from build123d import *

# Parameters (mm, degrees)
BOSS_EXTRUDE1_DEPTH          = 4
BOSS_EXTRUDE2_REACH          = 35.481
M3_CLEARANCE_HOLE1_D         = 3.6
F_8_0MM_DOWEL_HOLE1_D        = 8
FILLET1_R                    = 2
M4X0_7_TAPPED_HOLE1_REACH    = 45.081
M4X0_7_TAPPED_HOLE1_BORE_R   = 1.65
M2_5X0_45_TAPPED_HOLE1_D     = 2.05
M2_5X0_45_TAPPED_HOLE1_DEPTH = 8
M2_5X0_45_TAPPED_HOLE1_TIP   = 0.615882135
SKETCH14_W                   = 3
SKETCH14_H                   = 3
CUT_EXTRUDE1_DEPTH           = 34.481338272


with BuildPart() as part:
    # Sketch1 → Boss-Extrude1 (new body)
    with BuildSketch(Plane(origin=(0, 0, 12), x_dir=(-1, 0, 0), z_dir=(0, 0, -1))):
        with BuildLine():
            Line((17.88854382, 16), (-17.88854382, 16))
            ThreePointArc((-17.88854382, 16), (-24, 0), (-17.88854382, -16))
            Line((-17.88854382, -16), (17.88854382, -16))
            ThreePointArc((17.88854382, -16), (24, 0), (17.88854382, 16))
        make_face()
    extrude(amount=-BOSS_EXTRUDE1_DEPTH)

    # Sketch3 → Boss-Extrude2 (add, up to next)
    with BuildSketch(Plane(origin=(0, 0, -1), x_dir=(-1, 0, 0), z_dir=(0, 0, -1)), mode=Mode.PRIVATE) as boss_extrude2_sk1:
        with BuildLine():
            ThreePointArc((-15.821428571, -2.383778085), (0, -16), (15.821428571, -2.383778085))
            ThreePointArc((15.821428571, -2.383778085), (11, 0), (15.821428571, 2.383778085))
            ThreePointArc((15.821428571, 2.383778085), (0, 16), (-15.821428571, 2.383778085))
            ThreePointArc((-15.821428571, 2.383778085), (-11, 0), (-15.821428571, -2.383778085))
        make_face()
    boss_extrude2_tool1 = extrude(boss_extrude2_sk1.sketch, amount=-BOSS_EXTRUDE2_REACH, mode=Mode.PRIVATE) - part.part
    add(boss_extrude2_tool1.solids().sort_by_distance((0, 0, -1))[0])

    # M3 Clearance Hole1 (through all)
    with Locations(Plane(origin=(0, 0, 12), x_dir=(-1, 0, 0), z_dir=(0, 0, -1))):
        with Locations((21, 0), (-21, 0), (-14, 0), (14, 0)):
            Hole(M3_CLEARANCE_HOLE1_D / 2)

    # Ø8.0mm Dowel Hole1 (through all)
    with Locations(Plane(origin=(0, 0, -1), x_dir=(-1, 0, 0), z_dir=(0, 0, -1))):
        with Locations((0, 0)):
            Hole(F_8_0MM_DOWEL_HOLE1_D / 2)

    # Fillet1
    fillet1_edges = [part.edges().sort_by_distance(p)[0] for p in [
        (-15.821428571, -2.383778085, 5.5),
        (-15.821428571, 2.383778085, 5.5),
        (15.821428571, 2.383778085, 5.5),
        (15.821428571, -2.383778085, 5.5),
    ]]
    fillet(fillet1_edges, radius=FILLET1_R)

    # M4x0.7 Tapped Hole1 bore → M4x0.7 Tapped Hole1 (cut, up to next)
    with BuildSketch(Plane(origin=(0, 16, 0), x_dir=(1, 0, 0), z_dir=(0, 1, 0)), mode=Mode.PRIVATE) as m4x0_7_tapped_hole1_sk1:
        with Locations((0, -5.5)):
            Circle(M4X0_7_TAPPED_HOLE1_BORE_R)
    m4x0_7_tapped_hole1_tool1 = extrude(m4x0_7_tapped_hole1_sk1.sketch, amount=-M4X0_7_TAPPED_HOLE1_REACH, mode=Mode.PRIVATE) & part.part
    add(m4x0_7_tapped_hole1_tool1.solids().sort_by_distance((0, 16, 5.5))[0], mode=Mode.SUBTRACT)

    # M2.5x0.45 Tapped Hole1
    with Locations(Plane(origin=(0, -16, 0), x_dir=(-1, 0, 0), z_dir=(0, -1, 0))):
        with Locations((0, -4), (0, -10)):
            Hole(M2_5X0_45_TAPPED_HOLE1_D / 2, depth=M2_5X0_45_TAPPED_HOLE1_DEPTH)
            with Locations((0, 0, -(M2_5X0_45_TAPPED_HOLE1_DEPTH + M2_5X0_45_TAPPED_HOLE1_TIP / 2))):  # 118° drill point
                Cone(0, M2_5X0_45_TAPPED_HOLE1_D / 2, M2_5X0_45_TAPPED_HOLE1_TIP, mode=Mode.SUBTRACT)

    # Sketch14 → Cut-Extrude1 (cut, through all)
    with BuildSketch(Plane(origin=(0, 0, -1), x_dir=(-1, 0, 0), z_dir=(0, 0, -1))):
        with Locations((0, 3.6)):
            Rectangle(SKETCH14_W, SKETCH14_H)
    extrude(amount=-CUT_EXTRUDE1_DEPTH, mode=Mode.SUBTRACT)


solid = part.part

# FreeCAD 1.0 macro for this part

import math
import FreeCAD as App
import Part
import Sketcher
Q = App.Units.Quantity


def edges_at(feature, points):
    """Names of the edges that pass closest to the given points."""
    edges = feature.Shape.Edges
    near = lambda p: min(range(len(edges)), key=lambda i: edges[i].distToShape(Part.Vertex(*p))[0])
    return sorted({f"Edge{near(p) + 1}" for p in points})


def add_polygon(sketch, points):
    """Adds a closed chain of lines whose ends are joined by coincident constraints."""
    first, n = sketch.GeometryCount, len(points)
    for a, b in zip(points, points[1:] + points[:1]):
        sketch.addGeometry(Part.LineSegment(App.Vector(*a, 0), App.Vector(*b, 0)), False)
    for i in range(n):
        sketch.addConstraint(Sketcher.Constraint("Coincident", first + i, 2, first + (i + 1) % n, 1))

doc = App.newDocument("Part")
body = doc.addObject("PartDesign::Body", "Body")

# Sketch on XY plane
sketch1 = doc.addObject("Sketcher::SketchObject", "Sketch")
body.addObject(sketch1)
sketch1.AttachmentSupport = (doc.XY_Plane, [""])
sketch1.MapMode = "FlatFace"
sketch1.AttachmentOffset = App.Placement(App.Vector(0, 0, 12), App.Rotation())
sketch1.addGeometry(Part.LineSegment(App.Vector(-17.888544, 16, 0), App.Vector(17.888544, 16, 0)), False)
sketch1.addGeometry(Part.ArcOfCircle(Part.Circle(App.Vector(0, 0, 0), App.Vector(0, 0, 1), 24), math.radians(-41.810315), math.radians(41.810315)), False)
sketch1.addGeometry(Part.LineSegment(App.Vector(17.888544, -16, 0), App.Vector(-17.888544, -16, 0)), False)
sketch1.addGeometry(Part.ArcOfCircle(Part.Circle(App.Vector(0, 0, 0), App.Vector(0, 0, 1), 24), math.radians(138.189685), math.radians(221.810315)), False)
sketch1.addConstraint(Sketcher.Constraint("Coincident", 0, 2, 1, 2))
sketch1.addConstraint(Sketcher.Constraint("Coincident", 1, 1, 2, 1))
sketch1.addConstraint(Sketcher.Constraint("Coincident", 2, 2, 3, 2))
sketch1.addConstraint(Sketcher.Constraint("Coincident", 3, 1, 0, 1))
sketch1.addConstraint(Sketcher.Constraint("Horizontal", 0))
sketch1.addConstraint(Sketcher.Constraint("Horizontal", 2))
sketch1.addConstraint(Sketcher.Constraint("Coincident", 1, 3, -1, 1))
sketch1.addConstraint(Sketcher.Constraint("Coincident", 3, 3, -1, 1))
sketch1.addConstraint(Sketcher.Constraint("Equal", 1, 3))
sketch1.addConstraint(Sketcher.Constraint("Vertical", 0, 2, 1, 1))
sketch1.addConstraint(Sketcher.Constraint("Radius", 1, Q("24 mm")))
sketch1.addConstraint(Sketcher.Constraint("DistanceY", -1, 1, 0, 2, Q("16 mm")))
pad1 = doc.addObject("PartDesign::Pad", "Pad")
body.addObject(pad1)
pad1.Profile = sketch1
pad1.Length = 4

# Sketch on XY plane
sketch2 = doc.addObject("Sketcher::SketchObject", "Sketch001")
body.addObject(sketch2)
sketch2.AttachmentSupport = (doc.XY_Plane, [""])
sketch2.MapMode = "FlatFace"
sketch2.AttachmentOffset = App.Placement(App.Vector(0, 0, -1), App.Rotation())
sketch2.addGeometry(Part.ArcOfCircle(Part.Circle(App.Vector(0, 0, 0), App.Vector(0, 0, 1), 16), math.radians(-171.431824), math.radians(-8.568176)), False)
sketch2.addGeometry(Part.ArcOfCircle(Part.Circle(App.Vector(-14, 0, 0), App.Vector(0, 0, 1), 3), math.radians(-127.383198), math.radians(127.383198)), False)
sketch2.addGeometry(Part.ArcOfCircle(Part.Circle(App.Vector(0, 0, 0), App.Vector(0, 0, 1), 16), math.radians(8.568176), math.radians(171.431824)), False)
sketch2.addGeometry(Part.ArcOfCircle(Part.Circle(App.Vector(14, 0, 0), App.Vector(0, 0, 1), 3), math.radians(52.616802), math.radians(307.383198)), False)
sketch2.addConstraint(Sketcher.Constraint("Coincident", 0, 1, 1, 1))
sketch2.addConstraint(Sketcher.Constraint("Coincident", 1, 2, 2, 2))
sketch2.addConstraint(Sketcher.Constraint("Coincident", 2, 1, 3, 1))
sketch2.addConstraint(Sketcher.Constraint("Coincident", 3, 2, 0, 2))
sketch2.addConstraint(Sketcher.Constraint("Coincident", 0, 3, -1, 1))
sketch2.addConstraint(Sketcher.Constraint("Coincident", 2, 3, -1, 1))
sketch2.addConstraint(Sketcher.Constraint("Equal", 0, 2))
sketch2.addConstraint(Sketcher.Constraint("Equal", 1, 3))
sketch2.addConstraint(Sketcher.Constraint("Symmetric", 1, 3, 3, 3, -1, 1))
sketch2.addConstraint(Sketcher.Constraint("PointOnObject", 1, 3, -1))
sketch2.addConstraint(Sketcher.Constraint("Radius", 0, Q("16 mm")))
sketch2.addConstraint(Sketcher.Constraint("Radius", 1, Q("3 mm")))
sketch2.addConstraint(Sketcher.Constraint("DistanceX", 1, 3, -1, 1, Q("14 mm")))
pad2 = doc.addObject("PartDesign::Pad", "Pad001")
body.addObject(pad2)
pad2.Profile = sketch2
pad2.Type = "UpToFirst"

# Sketch on XY plane
sketch3 = doc.addObject("Sketcher::SketchObject", "Sketch002")
body.addObject(sketch3)
sketch3.AttachmentSupport = (doc.XY_Plane, [""])
sketch3.MapMode = "FlatFace"
sketch3.AttachmentOffset = App.Placement(App.Vector(0, 0, 12), App.Rotation())
sketch3.addGeometry(Part.Circle(App.Vector(-21, 0, 0), App.Vector(0, 0, 1), 1.8), False)
sketch3.addGeometry(Part.Circle(App.Vector(21, 0, 0), App.Vector(0, 0, 1), 1.8), False)
sketch3.addGeometry(Part.Circle(App.Vector(14, 0, 0), App.Vector(0, 0, 1), 1.8), False)
sketch3.addGeometry(Part.Circle(App.Vector(-14, 0, 0), App.Vector(0, 0, 1), 1.8), False)
sketch3.addConstraint(Sketcher.Constraint("Equal", 0, 1))
sketch3.addConstraint(Sketcher.Constraint("Equal", 1, 2))
sketch3.addConstraint(Sketcher.Constraint("Equal", 2, 3))
sketch3.addConstraint(Sketcher.Constraint("Symmetric", 0, 3, 1, 3, -1, 1))
sketch3.addConstraint(Sketcher.Constraint("Symmetric", 2, 3, 3, 3, -1, 1))
sketch3.addConstraint(Sketcher.Constraint("PointOnObject", 0, 3, -1))
sketch3.addConstraint(Sketcher.Constraint("PointOnObject", 2, 3, -1))
sketch3.addConstraint(Sketcher.Constraint("Diameter", 0, Q("3.6 mm")))
sketch3.addConstraint(Sketcher.Constraint("DistanceX", 0, 3, -1, 1, Q("21 mm")))
sketch3.addConstraint(Sketcher.Constraint("DistanceX", -1, 1, 2, 3, Q("14 mm")))
doc.recompute()
hole = doc.addObject("PartDesign::Hole", "Hole")
body.addObject(hole)
hole.Profile = sketch3
hole.ThreadType = "None"
hole.Diameter = 3.6
hole.DepthType = "ThroughAll"
hole.Reversed = True

# Sketch on XY plane
sketch4 = doc.addObject("Sketcher::SketchObject", "Sketch003")
body.addObject(sketch4)
sketch4.AttachmentSupport = (doc.XY_Plane, [""])
sketch4.MapMode = "FlatFace"
sketch4.AttachmentOffset = App.Placement(App.Vector(0, 0, -1), App.Rotation())
sketch4.addGeometry(Part.Circle(App.Vector(0, 0, 0), App.Vector(0, 0, 1), 4), False)
sketch4.addConstraint(Sketcher.Constraint("Coincident", 0, 3, -1, 1))
sketch4.addConstraint(Sketcher.Constraint("Diameter", 0, Q("8 mm")))
doc.recompute()
hole2 = doc.addObject("PartDesign::Hole", "Hole001")
body.addObject(hole2)
hole2.Profile = sketch4
hole2.ThreadType = "None"
hole2.Diameter = 8
hole2.DepthType = "ThroughAll"
hole2.Reversed = True
doc.recompute()

fillet = doc.addObject("PartDesign::Fillet", "Fillet")
body.addObject(fillet)
fillet.Base = (hole2, edges_at(hole2, [
    (-15.821, -2.384, 5.5),
    (-15.821, 2.384, 5.5),
    (15.821, 2.384, 5.5),
    (15.821, -2.384, 5.5),
]))
fillet.Radius = 2

# Sketch on XZ plane
sketch5 = doc.addObject("Sketcher::SketchObject", "Sketch004")
body.addObject(sketch5)
sketch5.AttachmentSupport = (doc.XZ_Plane, [""])
sketch5.MapMode = "FlatFace"
sketch5.AttachmentOffset = App.Placement(App.Vector(0, 0, -16), App.Rotation())
sketch5.addGeometry(Part.Circle(App.Vector(0, 5.5, 0), App.Vector(0, 0, 1), 1.65), False)
sketch5.addConstraint(Sketcher.Constraint("PointOnObject", 0, 3, -2))
sketch5.addConstraint(Sketcher.Constraint("Diameter", 0, Q("3.3 mm")))
sketch5.addConstraint(Sketcher.Constraint("DistanceY", -1, 1, 0, 3, Q("5.5 mm")))
pocket1 = doc.addObject("PartDesign::Pocket", "Pocket")
body.addObject(pocket1)
pocket1.Profile = sketch5
pocket1.Type = "UpToFirst"
pocket1.Reversed = True

# Sketch on XZ plane
sketch6 = doc.addObject("Sketcher::SketchObject", "Sketch005")
body.addObject(sketch6)
sketch6.AttachmentSupport = (doc.XZ_Plane, [""])
sketch6.MapMode = "FlatFace"
sketch6.AttachmentOffset = App.Placement(App.Vector(0, 0, 16), App.Rotation())
sketch6.addGeometry(Part.Circle(App.Vector(0, 4, 0), App.Vector(0, 0, 1), 1.025), False)
sketch6.addGeometry(Part.Circle(App.Vector(0, 10, 0), App.Vector(0, 0, 1), 1.025), False)
sketch6.addConstraint(Sketcher.Constraint("Equal", 0, 1))
sketch6.addConstraint(Sketcher.Constraint("PointOnObject", 0, 3, -2))
sketch6.addConstraint(Sketcher.Constraint("PointOnObject", 1, 3, -2))
sketch6.addConstraint(Sketcher.Constraint("Diameter", 0, Q("2.05 mm")))
sketch6.addConstraint(Sketcher.Constraint("DistanceY", -1, 1, 0, 3, Q("4 mm")))
sketch6.addConstraint(Sketcher.Constraint("DistanceY", -1, 1, 1, 3, Q("10 mm")))
doc.recompute()
hole3 = doc.addObject("PartDesign::Hole", "Hole002")
body.addObject(hole3)
hole3.Profile = sketch6
hole3.ThreadType = "None"
hole3.Diameter = 2.05
hole3.DepthType = "Dimension"
hole3.Depth = 8
hole3.DrillPoint = "Angled"
hole3.DrillPointAngle = 118

# Sketch on XY plane
sketch7 = doc.addObject("Sketcher::SketchObject", "Sketch006")
body.addObject(sketch7)
sketch7.AttachmentSupport = (doc.XY_Plane, [""])
sketch7.MapMode = "FlatFace"
sketch7.AttachmentOffset = App.Placement(App.Vector(0, 0, -1), App.Rotation())
add_polygon(sketch7, [(1.5, 5.1), (1.5, 2.1), (-1.5, 2.1), (-1.5, 5.1)])  # lines 0-3
sketch7.addConstraint(Sketcher.Constraint("Vertical", 0))
sketch7.addConstraint(Sketcher.Constraint("Horizontal", 1))
sketch7.addConstraint(Sketcher.Constraint("Vertical", 2))
sketch7.addConstraint(Sketcher.Constraint("Horizontal", 3))
sketch7.addConstraint(Sketcher.Constraint("Equal", 3, 0))
sketch7.addConstraint(Sketcher.Constraint("DistanceX", 1, 2, 1, 1, Q("3 mm")))
sketch7.addConstraint(Sketcher.Constraint("DistanceX", -1, 1, 0, 2, Q("1.5 mm")))
sketch7.addConstraint(Sketcher.Constraint("DistanceY", -1, 1, 0, 2, Q("2.1 mm")))
pocket2 = doc.addObject("PartDesign::Pocket", "Pocket001")
body.addObject(pocket2)
pocket2.Profile = sketch7
pocket2.Type = "ThroughAll"
pocket2.Reversed = True

doc.recompute()
